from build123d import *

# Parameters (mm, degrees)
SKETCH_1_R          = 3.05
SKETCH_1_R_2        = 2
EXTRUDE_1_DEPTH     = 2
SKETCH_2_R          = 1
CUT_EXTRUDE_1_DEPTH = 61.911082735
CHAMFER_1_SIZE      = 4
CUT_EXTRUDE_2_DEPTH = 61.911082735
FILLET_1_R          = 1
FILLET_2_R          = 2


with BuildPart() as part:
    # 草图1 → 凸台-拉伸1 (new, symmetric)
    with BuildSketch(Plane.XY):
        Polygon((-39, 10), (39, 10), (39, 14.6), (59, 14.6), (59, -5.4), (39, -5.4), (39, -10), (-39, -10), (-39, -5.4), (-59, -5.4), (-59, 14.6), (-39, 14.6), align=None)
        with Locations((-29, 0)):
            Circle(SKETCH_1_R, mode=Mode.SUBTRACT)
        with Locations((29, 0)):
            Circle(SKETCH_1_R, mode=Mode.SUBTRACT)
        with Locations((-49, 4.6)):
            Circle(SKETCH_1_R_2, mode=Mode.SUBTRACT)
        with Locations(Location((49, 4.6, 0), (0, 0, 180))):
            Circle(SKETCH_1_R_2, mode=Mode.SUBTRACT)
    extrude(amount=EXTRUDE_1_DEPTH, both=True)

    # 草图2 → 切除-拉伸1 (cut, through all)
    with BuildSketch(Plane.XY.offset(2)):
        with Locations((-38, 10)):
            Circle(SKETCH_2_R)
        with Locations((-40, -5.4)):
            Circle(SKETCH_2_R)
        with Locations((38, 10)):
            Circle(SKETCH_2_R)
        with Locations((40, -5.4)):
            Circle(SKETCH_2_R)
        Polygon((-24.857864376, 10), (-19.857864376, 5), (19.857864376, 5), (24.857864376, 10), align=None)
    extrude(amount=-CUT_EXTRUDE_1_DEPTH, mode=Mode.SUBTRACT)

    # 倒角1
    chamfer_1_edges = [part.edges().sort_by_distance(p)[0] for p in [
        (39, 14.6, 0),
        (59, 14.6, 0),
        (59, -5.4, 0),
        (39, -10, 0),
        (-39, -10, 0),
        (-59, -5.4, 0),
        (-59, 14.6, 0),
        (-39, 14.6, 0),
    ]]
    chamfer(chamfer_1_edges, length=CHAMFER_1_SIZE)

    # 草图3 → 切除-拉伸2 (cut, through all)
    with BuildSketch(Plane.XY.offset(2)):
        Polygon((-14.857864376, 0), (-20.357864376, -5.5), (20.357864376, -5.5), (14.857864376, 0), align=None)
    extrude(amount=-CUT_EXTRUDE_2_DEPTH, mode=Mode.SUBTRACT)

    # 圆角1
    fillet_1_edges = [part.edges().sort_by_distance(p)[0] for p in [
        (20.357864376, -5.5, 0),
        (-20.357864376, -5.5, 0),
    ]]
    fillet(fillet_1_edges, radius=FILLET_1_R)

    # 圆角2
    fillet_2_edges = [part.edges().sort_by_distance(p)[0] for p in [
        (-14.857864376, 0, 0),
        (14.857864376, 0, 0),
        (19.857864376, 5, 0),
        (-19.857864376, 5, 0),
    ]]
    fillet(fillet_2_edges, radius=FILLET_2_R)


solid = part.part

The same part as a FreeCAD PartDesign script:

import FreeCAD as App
import Part
import Sketcher
from FreeCAD import Vector


def edges_at(feature, points):
    """Names of the edges that pass closest to the given points."""
    edges = feature.Shape.Edges
    near = lambda p: min(range(len(edges)), key=lambda i: edges[i].distToShape(Part.Vertex(*p))[0])
    return sorted({f"Edge{near(p) + 1}" for p in points})

doc = App.newDocument("Part")
body = doc.addObject("PartDesign::Body", "Body")

# Sketch on XY plane
sketch1 = body.newObject("Sketcher::SketchObject", "Sketch")
sketch1.AttachmentSupport = (doc.getObject("XY_Plane"), [""])
sketch1.MapMode = "FlatFace"
sketch1.addGeometry([
    Part.LineSegment(Vector(39, 10, 0), Vector(-39, 10, 0)),  # 0
    Part.LineSegment(Vector(-39, 10, 0), Vector(-39, 14.6, 0)),  # 1
    Part.LineSegment(Vector(-39, 14.6, 0), Vector(-59, 14.6, 0)),  # 2
    Part.LineSegment(Vector(-59, 14.6, 0), Vector(-59, -5.4, 0)),  # 3
    Part.LineSegment(Vector(-59, -5.4, 0), Vector(-39, -5.4, 0)),  # 4
    Part.LineSegment(Vector(-39, -5.4, 0), Vector(-39, -10, 0)),  # 5
    Part.LineSegment(Vector(-39, -10, 0), Vector(39, -10, 0)),  # 6
    Part.LineSegment(Vector(39, -10, 0), Vector(39, -5.4, 0)),  # 7
    Part.LineSegment(Vector(39, -5.4, 0), Vector(59, -5.4, 0)),  # 8
    Part.LineSegment(Vector(59, -5.4, 0), Vector(59, 14.6, 0)),  # 9
    Part.LineSegment(Vector(59, 14.6, 0), Vector(39, 14.6, 0)),  # 10
    Part.LineSegment(Vector(39, 14.6, 0), Vector(39, 10, 0)),  # 11
    Part.Circle(Vector(29, 0, 0), Vector(0, 0, 1), 3.05),  # 12
    Part.Circle(Vector(-29, 0, 0), Vector(0, 0, 1), 3.05),  # 13
    Part.Circle(Vector(49, 4.6, 0), Vector(0, 0, 1), 2),  # 14
    Part.Circle(Vector(-49, 4.6, 0), Vector(0, 0, 1), 2),  # 15
], False)
sketch1.addConstraint([
    Sketcher.Constraint("Coincident", 0, 2, 1, 1),
    Sketcher.Constraint("Coincident", 1, 2, 2, 1),
    Sketcher.Constraint("Coincident", 2, 2, 3, 1),
    Sketcher.Constraint("Coincident", 3, 2, 4, 1),
    Sketcher.Constraint("Coincident", 4, 2, 5, 1),
    Sketcher.Constraint("Coincident", 5, 2, 6, 1),
    Sketcher.Constraint("Coincident", 6, 2, 7, 1),
    Sketcher.Constraint("Coincident", 7, 2, 8, 1),
    Sketcher.Constraint("Coincident", 8, 2, 9, 1),
    Sketcher.Constraint("Coincident", 9, 2, 10, 1),
    Sketcher.Constraint("Coincident", 10, 2, 11, 1),
    Sketcher.Constraint("Coincident", 11, 2, 0, 1),
    Sketcher.Constraint("Horizontal", 0),
    Sketcher.Constraint("Vertical", 1),
    Sketcher.Constraint("Horizontal", 2),
    Sketcher.Constraint("Vertical", 3),
    Sketcher.Constraint("Horizontal", 4),
    Sketcher.Constraint("Vertical", 5),
    Sketcher.Constraint("Horizontal", 6),
    Sketcher.Constraint("Vertical", 7),
    Sketcher.Constraint("Horizontal", 8),
    Sketcher.Constraint("Vertical", 9),
    Sketcher.Constraint("Horizontal", 10),
    Sketcher.Constraint("Vertical", 11),
    Sketcher.Constraint("Equal", 12, 13),
    Sketcher.Constraint("Equal", 14, 15),
    Sketcher.Constraint("Symmetric", 12, 3, 13, 3, -1, 1),
    Sketcher.Constraint("Symmetric", 0, 2, 6, 2, -1, 1),
    Sketcher.Constraint("Symmetric", 14, 3, 15, 3, -2),
    Sketcher.Constraint("Symmetric", 4, 2, 7, 2, -2),
    Sketcher.Constraint("Symmetric", 2, 2, 9, 2, -2),
    Sketcher.Constraint("PointOnObject", 12, 3, -1),
    Sketcher.Constraint("Vertical", 7, 2, 10, 2),
    Sketcher.Constraint("Equal", 10, 3),
    Sketcher.Constraint("Equal", 1, 5),
    Sketcher.Constraint("Diameter", 14, 4.0),
    Sketcher.Constraint("Diameter", 12, 6.1),
    Sketcher.Constraint("DistanceX", 0, 2, 0, 1, 78.0),
    Sketcher.Constraint("DistanceX", 2, 2, 2, 1, 20.0),
    Sketcher.Constraint("DistanceY", 1, 1, 1, 2, 4.6),
    Sketcher.Constraint("DistanceX", -1, 1, 12, 3, 29.0),
    Sketcher.Constraint("DistanceX", -1, 1, 14, 3, 49.0),
    Sketcher.Constraint("DistanceY", 15, 3, 1, 2, 10.0),
])
pad1 = body.newObject("PartDesign::Pad", "Pad")
pad1.Profile = sketch1
pad1.Length = 4
pad1.Midplane = True

# Sketch on XY plane
sketch2 = body.newObject("Sketcher::SketchObject", "Sketch001")
sketch2.AttachmentSupport = (doc.getObject("XY_Plane"), [""])
sketch2.MapMode = "FlatFace"
sketch2.AttachmentOffset = App.Placement(Vector(0, 0, 2), App.Rotation())
sketch2.addGeometry([
    Part.Circle(Vector(-38, 10, 0), Vector(0, 0, 1), 1),  # 0
    Part.Circle(Vector(-40, -5.4, 0), Vector(0, 0, 1), 1),  # 1
    Part.Circle(Vector(38, 10, 0), Vector(0, 0, 1), 1),  # 2
    Part.Circle(Vector(40, -5.4, 0), Vector(0, 0, 1), 1),  # 3
    Part.LineSegment(Vector(-24.857864, 10, 0), Vector(-19.857864, 5, 0)),  # 4
    Part.LineSegment(Vector(-19.857864, 5, 0), Vector(19.857864, 5, 0)),  # 5
    Part.LineSegment(Vector(19.857864, 5, 0), Vector(24.857864, 10, 0)),  # 6
    Part.LineSegment(Vector(24.857864, 10, 0), Vector(-24.857864, 10, 0)),  # 7
], False)
sketch2.addConstraint([
    Sketcher.Constraint("Coincident", 4, 2, 5, 1),
    Sketcher.Constraint("Coincident", 5, 2, 6, 1),
    Sketcher.Constraint("Coincident", 6, 2, 7, 1),
    Sketcher.Constraint("Coincident", 7, 2, 4, 1),
    Sketcher.Constraint("Horizontal", 5),
    Sketcher.Constraint("Horizontal", 7),
    Sketcher.Constraint("Equal", 0, 1),
    Sketcher.Constraint("Equal", 1, 2),
    Sketcher.Constraint("Equal", 2, 3),
    Sketcher.Constraint("Symmetric", 0, 3, 2, 3, -2),
    Sketcher.Constraint("Symmetric", 1, 3, 3, 3, -2),
    Sketcher.Constraint("Perpendicular", 4, 6),
    Sketcher.Constraint("Horizontal", 2, 3, 6, 2),
    Sketcher.Constraint("Equal", 4, 6),
    Sketcher.Constraint("Diameter", 0, 2.0),
    Sketcher.Constraint("DistanceX", 0, 3, -1, 1, 38.0),
    Sketcher.Constraint("DistanceY", -1, 1, 0, 3, 10.0),
    Sketcher.Constraint("DistanceX", 1, 3, -1, 1, 40.0),
    Sketcher.Constraint("DistanceY", -1, 1, 4, 2, 5.0),
    Sketcher.Constraint("DistanceY", 1, 3, -1, 1, 5.4),
    Sketcher.Constraint("DistanceX", 5, 1, 5, 2, 39.715729),
    Sketcher.Constraint("DistanceX", 4, 2, -1, 1, 19.857864),
])
pocket1 = body.newObject("PartDesign::Pocket", "Pocket")
pocket1.Profile = sketch2
pocket1.Type = "ThroughAll"
doc.recompute()

chamfer = body.newObject("PartDesign::Chamfer", "Chamfer")
chamfer.Base = (pocket1, edges_at(pocket1, [
    (39, 14.6, 0),
    (59, 14.6, 0),
    (59, -5.4, 0),
    (39, -10, 0),
    (-39, -10, 0),
    (-59, -5.4, 0),
    (-59, 14.6, 0),
    (-39, 14.6, 0),
]))
chamfer.Size = 4

# Sketch on XY plane
sketch3 = body.newObject("Sketcher::SketchObject", "Sketch002")
sketch3.AttachmentSupport = (doc.getObject("XY_Plane"), [""])
sketch3.MapMode = "FlatFace"
sketch3.AttachmentOffset = App.Placement(Vector(0, 0, 2), App.Rotation())
sketch3.addGeometry([
    Part.LineSegment(Vector(-14.857864, 0, 0), Vector(-20.357864, -5.5, 0)),
    Part.LineSegment(Vector(-20.357864, -5.5, 0), Vector(20.357864, -5.5, 0)),
    Part.LineSegment(Vector(20.357864, -5.5, 0), Vector(14.857864, 0, 0)),
    Part.LineSegment(Vector(14.857864, 0, 0), Vector(-14.857864, 0, 0)),
], False)
sketch3.addConstraint([
    Sketcher.Constraint("Coincident", 0, 2, 1, 1),
    Sketcher.Constraint("Coincident", 1, 2, 2, 1),
    Sketcher.Constraint("Coincident", 2, 2, 3, 1),
    Sketcher.Constraint("Coincident", 3, 2, 0, 1),
    Sketcher.Constraint("Horizontal", 1),
    Sketcher.Constraint("Horizontal", 3),
    Sketcher.Constraint("Symmetric", 2, 2, 3, 2, -1, 1),
    Sketcher.Constraint("Perpendicular", 0, 2),
    Sketcher.Constraint("Equal", 0, 2),
    Sketcher.Constraint("DistanceY", 0, 2, -1, 1, 5.5),
    Sketcher.Constraint("DistanceX", 1, 1, 1, 2, 40.715729),
])
pocket2 = body.newObject("PartDesign::Pocket", "Pocket001")
pocket2.Profile = sketch3
pocket2.Type = "ThroughAll"
doc.recompute()

fillet = body.newObject("PartDesign::Fillet", "Fillet")
fillet.Base = (pocket2, edges_at(pocket2, [(20.358, -5.5, 0), (-20.358, -5.5, 0)]))
fillet.Radius = 1
doc.recompute()

fillet2 = body.newObject("PartDesign::Fillet", "Fillet001")
fillet2.Base = (fillet, edges_at(fillet, [
    (-14.858, 0, 0),
    (14.858, 0, 0),
    (19.858, 5, 0),
    (-19.858, 5, 0),
]))
fillet2.Radius = 2

doc.recompute()
